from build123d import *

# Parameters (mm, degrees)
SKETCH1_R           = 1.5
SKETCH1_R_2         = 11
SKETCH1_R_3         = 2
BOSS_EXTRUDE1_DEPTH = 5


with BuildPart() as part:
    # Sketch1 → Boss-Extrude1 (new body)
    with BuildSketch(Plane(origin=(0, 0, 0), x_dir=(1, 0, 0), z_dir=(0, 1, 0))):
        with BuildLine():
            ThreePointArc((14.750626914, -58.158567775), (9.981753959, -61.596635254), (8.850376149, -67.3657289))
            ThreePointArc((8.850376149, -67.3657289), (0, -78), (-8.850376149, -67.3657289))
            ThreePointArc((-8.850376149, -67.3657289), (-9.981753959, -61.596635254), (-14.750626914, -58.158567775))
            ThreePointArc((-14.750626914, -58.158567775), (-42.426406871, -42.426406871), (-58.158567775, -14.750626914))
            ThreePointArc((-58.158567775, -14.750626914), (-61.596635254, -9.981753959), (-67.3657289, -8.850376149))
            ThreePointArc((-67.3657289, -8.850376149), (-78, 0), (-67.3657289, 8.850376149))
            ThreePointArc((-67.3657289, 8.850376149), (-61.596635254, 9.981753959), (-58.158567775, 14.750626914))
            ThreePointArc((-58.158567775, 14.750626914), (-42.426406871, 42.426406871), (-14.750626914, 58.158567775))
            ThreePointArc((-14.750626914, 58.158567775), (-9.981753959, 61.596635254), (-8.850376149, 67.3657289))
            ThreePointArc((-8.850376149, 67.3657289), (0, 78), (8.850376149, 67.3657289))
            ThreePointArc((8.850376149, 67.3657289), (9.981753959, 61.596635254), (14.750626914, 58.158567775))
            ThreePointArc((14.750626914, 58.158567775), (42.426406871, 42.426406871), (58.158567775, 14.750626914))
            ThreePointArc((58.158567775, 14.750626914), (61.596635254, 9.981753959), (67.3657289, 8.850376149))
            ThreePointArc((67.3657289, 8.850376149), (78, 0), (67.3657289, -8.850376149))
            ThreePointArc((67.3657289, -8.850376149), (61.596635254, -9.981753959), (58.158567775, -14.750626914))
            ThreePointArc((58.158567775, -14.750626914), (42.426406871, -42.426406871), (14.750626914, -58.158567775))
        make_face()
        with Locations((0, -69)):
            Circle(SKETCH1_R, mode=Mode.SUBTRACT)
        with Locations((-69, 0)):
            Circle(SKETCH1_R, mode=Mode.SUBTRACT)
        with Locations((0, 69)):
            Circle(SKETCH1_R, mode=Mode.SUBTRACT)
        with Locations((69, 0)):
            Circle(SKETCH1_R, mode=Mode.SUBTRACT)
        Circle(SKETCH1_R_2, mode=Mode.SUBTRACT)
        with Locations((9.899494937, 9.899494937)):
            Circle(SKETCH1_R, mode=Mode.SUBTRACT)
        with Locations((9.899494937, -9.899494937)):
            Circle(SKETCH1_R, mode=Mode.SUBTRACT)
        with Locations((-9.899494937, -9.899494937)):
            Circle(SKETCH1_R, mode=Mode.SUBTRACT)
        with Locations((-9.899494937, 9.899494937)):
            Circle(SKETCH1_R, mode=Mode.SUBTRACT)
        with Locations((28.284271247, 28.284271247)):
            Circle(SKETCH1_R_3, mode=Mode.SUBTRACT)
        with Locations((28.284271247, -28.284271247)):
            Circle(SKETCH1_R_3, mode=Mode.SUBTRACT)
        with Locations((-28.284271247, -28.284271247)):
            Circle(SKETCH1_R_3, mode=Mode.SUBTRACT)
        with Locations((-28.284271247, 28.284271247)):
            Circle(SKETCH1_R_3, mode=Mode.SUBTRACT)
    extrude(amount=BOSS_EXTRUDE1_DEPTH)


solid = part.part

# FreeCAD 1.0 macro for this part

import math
import FreeCAD as App
import Part
import Sketcher
from FreeCAD import Vector
Q = App.Units.Quantity

doc = App.newDocument("Part")
body = doc.addObject("PartDesign::Body", "Body")

# Sketch on XZ plane
sketch1 = body.newObject("Sketcher::SketchObject", "Sketch")
sketch1.AttachmentSupport = (doc.getObject("XZ_Plane"), [""])
sketch1.MapMode = "FlatFace"
sketch1.addGeometry([
    Part.ArcOfCircle(Part.Circle(Vector(16.7, 65.9, 0), Vector(0, 0, 1), 8), math.radians(170), math.radians(256)),  # 0
    Part.ArcOfCircle(Part.Circle(Vector(0, 0, 0), Vector(0, 0, 1), 60), math.radians(14), math.radians(76)),  # 1
    Part.ArcOfCircle(Part.Circle(Vector(65.9, 16.7, 0), Vector(0, 0, 1), 8), math.radians(-166), math.radians(-80)),  # 2
    Part.ArcOfCircle(Part.Circle(Vector(69, 0, 0), Vector(0, 0, 1), 9), math.radians(-100), math.radians(100)),  # 3
    Part.ArcOfCircle(Part.Circle(Vector(65.9, -16.7, 0), Vector(0, 0, 1), 8), math.radians(80), math.radians(166)),  # 4
    Part.ArcOfCircle(Part.Circle(Vector(0, 0, 0), Vector(0, 0, 1), 60), math.radians(-76), math.radians(-14)),  # 5
    Part.ArcOfCircle(Part.Circle(Vector(16.7, -65.9, 0), Vector(0, 0, 1), 8), math.radians(104), math.radians(190)),  # 6
    Part.ArcOfCircle(Part.Circle(Vector(0, -69, 0), Vector(0, 0, 1), 9), math.radians(170), math.radians(370)),  # 7
    Part.ArcOfCircle(Part.Circle(Vector(-16.7, -65.9, 0), Vector(0, 0, 1), 8), math.radians(-10), math.radians(76)),  # 8
    Part.ArcOfCircle(Part.Circle(Vector(0, 0, 0), Vector(0, 0, 1), 60), math.radians(-166), math.radians(-104)),  # 9
    Part.ArcOfCircle(Part.Circle(Vector(-65.9, -16.7, 0), Vector(0, 0, 1), 8), math.radians(14), math.radians(100)),  # 10
    Part.ArcOfCircle(Part.Circle(Vector(-69, 0, 0), Vector(0, 0, 1), 9), math.radians(80), math.radians(280)),  # 11
    Part.ArcOfCircle(Part.Circle(Vector(-65.9, 16.7, 0), Vector(0, 0, 1), 8), math.radians(-100), math.radians(-14)),  # 12
    Part.ArcOfCircle(Part.Circle(Vector(0, 0, 0), Vector(0, 0, 1), 60), math.radians(104), math.radians(166)),  # 13
    Part.ArcOfCircle(Part.Circle(Vector(-16.7, 65.9, 0), Vector(0, 0, 1), 8), math.radians(-76), math.radians(10)),  # 14
    Part.ArcOfCircle(Part.Circle(Vector(0, 69, 0), Vector(0, 0, 1), 9), math.radians(-10), math.radians(190)),  # 15
    Part.Circle(Vector(28.3, 28.3, 0), Vector(0, 0, 1), 2),  # 16
    Part.Circle(Vector(9.9, 9.9, 0), Vector(0, 0, 1), 1.5),  # 17
    Part.Circle(Vector(0, 69, 0), Vector(0, 0, 1), 1.5),  # 18
    Part.Circle(Vector(-28.3, 28.3, 0), Vector(0, 0, 1), 2),  # 19
    Part.Circle(Vector(-9.9, 9.9, 0), Vector(0, 0, 1), 1.5),  # 20
    Part.Circle(Vector(69, 0, 0), Vector(0, 0, 1), 1.5),  # 21
    Part.Circle(Vector(9.9, -9.9, 0), Vector(0, 0, 1), 1.5),  # 22
    Part.Circle(Vector(28.3, -28.3, 0), Vector(0, 0, 1), 2),  # 23
    Part.Circle(Vector(0, 0, 0), Vector(0, 0, 1), 11),  # 24
    Part.Circle(Vector(-9.9, -9.9, 0), Vector(0, 0, 1), 1.5),  # 25
    Part.Circle(Vector(-28.3, -28.3, 0), Vector(0, 0, 1), 2),  # 26
    Part.Circle(Vector(-69, 0, 0), Vector(0, 0, 1), 1.5),  # 27
    Part.Circle(Vector(0, -69, 0), Vector(0, 0, 1), 1.5),  # 28
], False)
sketch1.addConstraint([
    Sketcher.Constraint("Tangent", 0, 2, 1, 2),
    Sketcher.Constraint("Tangent", 1, 1, 2, 1),
    Sketcher.Constraint("Tangent", 2, 2, 3, 2),
    Sketcher.Constraint("Tangent", 3, 1, 4, 1),
    Sketcher.Constraint("Tangent", 4, 2, 5, 2),
    Sketcher.Constraint("Tangent", 5, 1, 6, 1),
    Sketcher.Constraint("Tangent", 6, 2, 7, 2),
    Sketcher.Constraint("Tangent", 7, 1, 8, 1),
    Sketcher.Constraint("Tangent", 8, 2, 9, 2),
    Sketcher.Constraint("Tangent", 9, 1, 10, 1),
    Sketcher.Constraint("Tangent", 10, 2, 11, 2),
    Sketcher.Constraint("Tangent", 11, 1, 12, 1),
    Sketcher.Constraint("Tangent", 12, 2, 13, 2),
    Sketcher.Constraint("Tangent", 13, 1, 14, 1),
    Sketcher.Constraint("Tangent", 14, 2, 15, 2),
    Sketcher.Constraint("Tangent", 15, 1, 0, 1),
    Sketcher.Constraint("Coincident", 1, 3, -1, 1),
    Sketcher.Constraint("Coincident", 5, 3, -1, 1),
    Sketcher.Constraint("Coincident", 9, 3, -1, 1),
    Sketcher.Constraint("Coincident", 13, 3, -1, 1),
    Sketcher.Constraint("Coincident", 24, 3, -1, 1),
    Sketcher.Constraint("Coincident", 18, 3, 15, 3),
    Sketcher.Constraint("Coincident", 21, 3, 3, 3),
    Sketcher.Constraint("Coincident", 27, 3, 11, 3),
    Sketcher.Constraint("Coincident", 28, 3, 7, 3),
    Sketcher.Constraint("Equal", 0, 2),
    Sketcher.Constraint("Equal", 2, 4),
    Sketcher.Constraint("Equal", 1, 5),
    Sketcher.Constraint("Equal", 4, 6),
    Sketcher.Constraint("Equal", 3, 7),
    Sketcher.Constraint("Equal", 6, 8),
    Sketcher.Constraint("Equal", 5, 9),
    Sketcher.Constraint("Equal", 8, 10),
    Sketcher.Constraint("Equal", 7, 11),
    Sketcher.Constraint("Equal", 10, 12),
    Sketcher.Constraint("Equal", 9, 13),
    Sketcher.Constraint("Equal", 12, 14),
    Sketcher.Constraint("Equal", 11, 15),
    Sketcher.Constraint("Equal", 17, 18),
    Sketcher.Constraint("Equal", 16, 19),
    Sketcher.Constraint("Equal", 18, 20),
    Sketcher.Constraint("Equal", 20, 21),
    Sketcher.Constraint("Equal", 21, 22),
    Sketcher.Constraint("Equal", 19, 23),
    Sketcher.Constraint("Equal", 22, 25),
    Sketcher.Constraint("Equal", 23, 26),
    Sketcher.Constraint("Equal", 25, 27),
    Sketcher.Constraint("Equal", 27, 28),
    Sketcher.Constraint("Symmetric", 3, 3, 11, 3, -1, 1),
    Sketcher.Constraint("Symmetric", 7, 3, 15, 3, -1, 1),
    Sketcher.Constraint("Symmetric", 20, 3, 22, 3, -1, 1),
    Sketcher.Constraint("Symmetric", 19, 3, 23, 3, -1, 1),
    Sketcher.Constraint("Symmetric", 17, 3, 25, 3, -1, 1),
    Sketcher.Constraint("Symmetric", 16, 3, 26, 3, -1, 1),
    Sketcher.Constraint("Symmetric", 16, 3, 19, 3, -2),
    Sketcher.Constraint("Symmetric", 17, 3, 20, 3, -2),
    Sketcher.Constraint("PointOnObject", 3, 3, -1),
    Sketcher.Constraint("PointOnObject", 7, 3, -2),
    Sketcher.Constraint("Diameter", 16, Q("4 mm")),
    Sketcher.Constraint("Diameter", 17, Q("3 mm")),
    Sketcher.Constraint("Diameter", 24, Q("22 mm")),
    Sketcher.Constraint("Radius", 0, Q("8 mm")),
    Sketcher.Constraint("Radius", 1, Q("60 mm")),
    Sketcher.Constraint("Radius", 3, Q("9 mm")),
    Sketcher.Constraint("DistanceX", -1, 1, 3, 3, Q("69 mm")),
    Sketcher.Constraint("DistanceY", 7, 3, -1, 1, Q("69 mm")),
    Sketcher.Constraint("DistanceX", -1, 1, 16, 3, Q("28.284271 mm")),
    Sketcher.Constraint("DistanceY", -1, 1, 16, 3, Q("28.284271 mm")),
    Sketcher.Constraint("DistanceX", 20, 3, 17, 3, Q("19.79899 mm")),
    Sketcher.Constraint("DistanceY", 22, 3, 17, 3, Q("19.79899 mm")),
])
pad1 = body.newObject("PartDesign::Pad", "Pad")
pad1.Profile = sketch1
pad1.Length = 5
pad1.Reversed = True

doc.recompute()
